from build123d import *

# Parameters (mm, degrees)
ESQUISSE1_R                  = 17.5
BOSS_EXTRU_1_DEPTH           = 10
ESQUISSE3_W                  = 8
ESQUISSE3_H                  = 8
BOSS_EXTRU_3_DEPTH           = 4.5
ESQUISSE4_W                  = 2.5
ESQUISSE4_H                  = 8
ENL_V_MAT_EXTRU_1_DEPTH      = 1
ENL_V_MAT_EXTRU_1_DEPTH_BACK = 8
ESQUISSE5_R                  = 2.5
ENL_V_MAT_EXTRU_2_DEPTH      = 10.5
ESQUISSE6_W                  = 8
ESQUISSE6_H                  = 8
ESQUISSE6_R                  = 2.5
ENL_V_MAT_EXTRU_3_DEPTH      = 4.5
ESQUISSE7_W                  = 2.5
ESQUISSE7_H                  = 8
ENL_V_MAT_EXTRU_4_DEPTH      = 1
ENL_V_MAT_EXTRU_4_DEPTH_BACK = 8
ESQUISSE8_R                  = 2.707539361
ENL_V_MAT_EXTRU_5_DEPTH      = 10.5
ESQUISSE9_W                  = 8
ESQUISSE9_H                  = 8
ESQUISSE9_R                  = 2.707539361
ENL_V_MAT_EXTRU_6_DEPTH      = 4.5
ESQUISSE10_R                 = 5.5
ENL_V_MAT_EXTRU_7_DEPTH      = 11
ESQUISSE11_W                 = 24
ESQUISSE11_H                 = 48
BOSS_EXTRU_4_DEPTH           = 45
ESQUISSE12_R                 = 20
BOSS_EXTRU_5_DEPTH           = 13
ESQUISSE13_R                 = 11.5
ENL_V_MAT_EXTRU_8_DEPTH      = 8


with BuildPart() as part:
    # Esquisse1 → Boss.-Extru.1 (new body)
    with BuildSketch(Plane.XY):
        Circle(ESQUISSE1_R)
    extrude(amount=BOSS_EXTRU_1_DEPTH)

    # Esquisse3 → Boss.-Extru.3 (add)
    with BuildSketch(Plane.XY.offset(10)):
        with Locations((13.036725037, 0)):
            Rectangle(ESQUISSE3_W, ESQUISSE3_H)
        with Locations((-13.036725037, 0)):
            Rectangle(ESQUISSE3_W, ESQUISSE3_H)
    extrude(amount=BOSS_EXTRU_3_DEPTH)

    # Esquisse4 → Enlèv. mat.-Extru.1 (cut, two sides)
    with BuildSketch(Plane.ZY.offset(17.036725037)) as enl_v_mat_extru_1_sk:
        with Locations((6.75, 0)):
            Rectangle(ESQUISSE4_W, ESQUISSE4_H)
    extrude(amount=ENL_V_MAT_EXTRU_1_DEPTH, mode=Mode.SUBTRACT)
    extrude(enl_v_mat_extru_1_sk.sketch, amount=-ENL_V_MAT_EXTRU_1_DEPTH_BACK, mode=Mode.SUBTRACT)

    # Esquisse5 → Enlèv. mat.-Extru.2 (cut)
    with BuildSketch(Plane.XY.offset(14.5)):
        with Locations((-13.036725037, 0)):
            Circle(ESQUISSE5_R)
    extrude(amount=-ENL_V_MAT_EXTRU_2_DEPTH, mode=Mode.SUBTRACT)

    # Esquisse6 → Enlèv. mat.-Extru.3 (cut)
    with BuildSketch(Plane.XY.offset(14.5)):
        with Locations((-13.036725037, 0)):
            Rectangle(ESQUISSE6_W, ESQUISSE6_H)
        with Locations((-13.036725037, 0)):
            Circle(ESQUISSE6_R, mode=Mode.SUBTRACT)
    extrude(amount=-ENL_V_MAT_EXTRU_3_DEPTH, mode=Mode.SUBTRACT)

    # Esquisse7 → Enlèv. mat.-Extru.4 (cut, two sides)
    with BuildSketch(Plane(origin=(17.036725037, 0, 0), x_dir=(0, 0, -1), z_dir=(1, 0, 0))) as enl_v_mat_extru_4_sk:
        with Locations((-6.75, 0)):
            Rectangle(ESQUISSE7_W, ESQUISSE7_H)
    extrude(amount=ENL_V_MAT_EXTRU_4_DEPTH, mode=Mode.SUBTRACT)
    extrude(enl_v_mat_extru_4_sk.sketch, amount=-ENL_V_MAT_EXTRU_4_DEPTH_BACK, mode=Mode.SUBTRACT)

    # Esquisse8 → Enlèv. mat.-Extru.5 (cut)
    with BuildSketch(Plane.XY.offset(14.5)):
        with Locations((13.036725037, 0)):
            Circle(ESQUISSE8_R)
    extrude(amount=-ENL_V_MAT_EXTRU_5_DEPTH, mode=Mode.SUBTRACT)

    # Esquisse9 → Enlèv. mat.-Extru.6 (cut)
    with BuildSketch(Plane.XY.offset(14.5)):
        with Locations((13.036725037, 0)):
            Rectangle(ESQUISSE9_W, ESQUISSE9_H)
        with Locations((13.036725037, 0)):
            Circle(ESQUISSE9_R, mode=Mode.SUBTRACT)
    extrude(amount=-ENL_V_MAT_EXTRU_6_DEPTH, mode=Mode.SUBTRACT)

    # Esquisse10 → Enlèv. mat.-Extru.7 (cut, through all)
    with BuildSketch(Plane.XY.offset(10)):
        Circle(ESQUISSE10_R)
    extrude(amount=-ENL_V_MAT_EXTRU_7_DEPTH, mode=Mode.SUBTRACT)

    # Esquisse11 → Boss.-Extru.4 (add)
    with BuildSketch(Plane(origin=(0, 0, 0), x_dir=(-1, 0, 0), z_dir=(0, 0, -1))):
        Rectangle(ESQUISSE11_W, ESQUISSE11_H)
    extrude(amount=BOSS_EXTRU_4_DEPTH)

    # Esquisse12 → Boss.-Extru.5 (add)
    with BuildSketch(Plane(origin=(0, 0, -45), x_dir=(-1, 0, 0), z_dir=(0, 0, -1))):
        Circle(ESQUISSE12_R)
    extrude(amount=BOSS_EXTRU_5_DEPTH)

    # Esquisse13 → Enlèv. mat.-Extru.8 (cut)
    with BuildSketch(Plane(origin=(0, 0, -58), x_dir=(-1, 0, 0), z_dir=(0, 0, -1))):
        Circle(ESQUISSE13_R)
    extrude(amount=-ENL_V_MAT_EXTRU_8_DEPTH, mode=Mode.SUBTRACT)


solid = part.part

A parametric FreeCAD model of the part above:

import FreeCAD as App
import Part
import Sketcher

V = App.Vector
Q = App.Units.Quantity

doc = App.newDocument("Part")
body = doc.addObject("PartDesign::Body", "Body")

# Sketch on XY plane
sketch1 = body.newObject("Sketcher::SketchObject", "Sketch")
sketch1.AttachmentSupport = (doc.getObject("XY_Plane"), [""])
sketch1.MapMode = "FlatFace"
sketch1.addGeometry(Part.Circle(V(0, 0, 0), V(0, 0, 1), 18), False)
sketch1.addConstraint([
    Sketcher.Constraint("Coincident", 0, 3, -1, 1),
    Sketcher.Constraint("Diameter", 0, Q("35 mm")),
])
pad1 = body.newObject("PartDesign::Pad", "Pad")
pad1.Profile = sketch1
pad1.Length = 10

# Sketch on XY plane
sketch2 = body.newObject("Sketcher::SketchObject", "Sketch001")
sketch2.AttachmentSupport = (doc.getObject("XY_Plane"), [""])
sketch2.MapMode = "FlatFace"
sketch2.AttachmentOffset = App.Placement(V(0, 0, 10), App.Rotation())
sketch2.addGeometry([
    Part.LineSegment(V(9, 4, 0), V(9, -4, 0)),  # 0
    Part.LineSegment(V(9, -4, 0), V(17, -4, 0)),  # 1
    Part.LineSegment(V(17, -4, 0), V(17, 4, 0)),  # 2
    Part.LineSegment(V(17, 4, 0), V(9, 4, 0)),  # 3
    Part.LineSegment(V(-17, 4, 0), V(-17, -4, 0)),  # 4
    Part.LineSegment(V(-17, -4, 0), V(-9, -4, 0)),  # 5
    Part.LineSegment(V(-9, -4, 0), V(-9, 4, 0)),  # 6
    Part.LineSegment(V(-9, 4, 0), V(-17, 4, 0)),  # 7
], False)
sketch2.addConstraint([
    Sketcher.Constraint("Coincident", 0, 2, 1, 1),
    Sketcher.Constraint("Coincident", 1, 2, 2, 1),
    Sketcher.Constraint("Coincident", 2, 2, 3, 1),
    Sketcher.Constraint("Coincident", 3, 2, 0, 1),
    Sketcher.Constraint("Coincident", 4, 2, 5, 1),
    Sketcher.Constraint("Coincident", 5, 2, 6, 1),
    Sketcher.Constraint("Coincident", 6, 2, 7, 1),
    Sketcher.Constraint("Coincident", 7, 2, 4, 1),
    Sketcher.Constraint("Vertical", 0),
    Sketcher.Constraint("Horizontal", 1),
    Sketcher.Constraint("Vertical", 2),
    Sketcher.Constraint("Horizontal", 3),
    Sketcher.Constraint("Vertical", 4),
    Sketcher.Constraint("Horizontal", 5),
    Sketcher.Constraint("Vertical", 6),
    Sketcher.Constraint("Horizontal", 7),
    Sketcher.Constraint("Symmetric", 2, 2, 4, 2, -1, 1),
    Sketcher.Constraint("Symmetric", 0, 2, 6, 2, -1, 1),
    Sketcher.Constraint("Horizontal", 1, 2, 4, 2),
    Sketcher.Constraint("Equal", 7, 0),
    Sketcher.Constraint("DistanceX", 1, 1, 1, 2, Q("8 mm")),
    Sketcher.Constraint("DistanceX", 4, 2, 0, 2, Q("26.07345 mm")),
])
pad2 = body.newObject("PartDesign::Pad", "Pad001")
pad2.Profile = sketch2
pad2.Length = 4.5

# Sketch on YZ plane
sketch3 = body.newObject("Sketcher::SketchObject", "Sketch002")
sketch3.AttachmentSupport = (doc.getObject("YZ_Plane"), [""])
sketch3.MapMode = "FlatFace"
sketch3.AttachmentOffset = App.Placement(V(0, 0, -17.036725), App.Rotation())
sketch3.addGeometry([
    Part.LineSegment(V(4, 5.5, 0), V(-4, 5.5, 0)),
    Part.LineSegment(V(-4, 5.5, 0), V(-4, 8, 0)),
    Part.LineSegment(V(-4, 8, 0), V(4, 8, 0)),
    Part.LineSegment(V(4, 8, 0), V(4, 5.5, 0)),
], False)
sketch3.addConstraint([
    Sketcher.Constraint("Coincident", 0, 2, 1, 1),
    Sketcher.Constraint("Coincident", 1, 2, 2, 1),
    Sketcher.Constraint("Coincident", 2, 2, 3, 1),
    Sketcher.Constraint("Coincident", 3, 2, 0, 1),
    Sketcher.Constraint("Horizontal", 0),
    Sketcher.Constraint("Vertical", 1),
    Sketcher.Constraint("Horizontal", 2),
    Sketcher.Constraint("Vertical", 3),
    Sketcher.Constraint("DistanceX", 0, 2, 0, 1, Q("8 mm")),
    Sketcher.Constraint("DistanceY", 1, 1, 1, 2, Q("2.5 mm")),
    Sketcher.Constraint("DistanceX", 0, 2, -1, 1, Q("4 mm")),
    Sketcher.Constraint("DistanceY", -1, 1, 1, 2, Q("8 mm")),
])
pocket1 = body.newObject("PartDesign::Pocket", "Pocket")
pocket1.Profile = sketch3
pocket1.Type = "TwoLengths"
pocket1.Length = 1
pocket1.Length2 = 8

# Sketch on XY plane
sketch4 = body.newObject("Sketcher::SketchObject", "Sketch003")
sketch4.AttachmentSupport = (doc.getObject("XY_Plane"), [""])
sketch4.MapMode = "FlatFace"
sketch4.AttachmentOffset = App.Placement(V(0, 0, 14.5), App.Rotation())
sketch4.addGeometry(Part.Circle(V(-13, 0, 0), V(0, 0, 1), 2.5), False)
sketch4.addConstraint([
    Sketcher.Constraint("PointOnObject", 0, 3, -1),
    Sketcher.Constraint("Diameter", 0, Q("5 mm")),
    Sketcher.Constraint("DistanceX", 0, 3, -1, 1, Q("13.036725 mm")),
])
pocket2 = body.newObject("PartDesign::Pocket", "Pocket001")
pocket2.Profile = sketch4
pocket2.Length = 10.5

# Sketch on XY plane
sketch5 = body.newObject("Sketcher::SketchObject", "Sketch004")
sketch5.AttachmentSupport = (doc.getObject("XY_Plane"), [""])
sketch5.MapMode = "FlatFace"
sketch5.AttachmentOffset = App.Placement(V(0, 0, 14.5), App.Rotation())
sketch5.addGeometry([
    Part.LineSegment(V(-17, 4, 0), V(-17, -4, 0)),  # 0
    Part.LineSegment(V(-17, -4, 0), V(-9, -4, 0)),  # 1
    Part.LineSegment(V(-9, -4, 0), V(-9, 4, 0)),  # 2
    Part.LineSegment(V(-9, 4, 0), V(-17, 4, 0)),  # 3
    Part.Circle(V(-13, 0, 0), V(0, 0, 1), 2.5),  # 4
], False)
sketch5.addConstraint([
    Sketcher.Constraint("Coincident", 0, 2, 1, 1),
    Sketcher.Constraint("Coincident", 1, 2, 2, 1),
    Sketcher.Constraint("Coincident", 2, 2, 3, 1),
    Sketcher.Constraint("Coincident", 3, 2, 0, 1),
    Sketcher.Constraint("Vertical", 0),
    Sketcher.Constraint("Horizontal", 1),
    Sketcher.Constraint("Vertical", 2),
    Sketcher.Constraint("Horizontal", 3),
    Sketcher.Constraint("PointOnObject", 4, 3, -1),
    Sketcher.Constraint("Equal", 3, 0),
    Sketcher.Constraint("Diameter", 4, Q("5 mm")),
    Sketcher.Constraint("DistanceX", 1, 1, 1, 2, Q("8 mm")),
    Sketcher.Constraint("DistanceY", 0, 2, -1, 1, Q("4 mm")),
    Sketcher.Constraint("DistanceX", 0, 2, 4, 3, Q("4 mm")),
    Sketcher.Constraint("DistanceX", 4, 3, -1, 1, Q("13.036725 mm")),
])
pocket3 = body.newObject("PartDesign::Pocket", "Pocket002")
pocket3.Profile = sketch5
pocket3.Length = 4.5

# Sketch on YZ plane
sketch6 = body.newObject("Sketcher::SketchObject", "Sketch005")
sketch6.AttachmentSupport = (doc.getObject("YZ_Plane"), [""])
sketch6.MapMode = "FlatFace"
sketch6.AttachmentOffset = App.Placement(V(0, 0, 17.036725), App.Rotation())
sketch6.addGeometry([
    Part.LineSegment(V(4, 8, 0), V(-4, 8, 0)),
    Part.LineSegment(V(-4, 8, 0), V(-4, 5.5, 0)),
    Part.LineSegment(V(-4, 5.5, 0), V(4, 5.5, 0)),
    Part.LineSegment(V(4, 5.5, 0), V(4, 8, 0)),
], False)
sketch6.addConstraint([
    Sketcher.Constraint("Coincident", 0, 2, 1, 1),
    Sketcher.Constraint("Coincident", 1, 2, 2, 1),
    Sketcher.Constraint("Coincident", 2, 2, 3, 1),
    Sketcher.Constraint("Coincident", 3, 2, 0, 1),
    Sketcher.Constraint("Horizontal", 0),
    Sketcher.Constraint("Vertical", 1),
    Sketcher.Constraint("Horizontal", 2),
    Sketcher.Constraint("Vertical", 3),
    Sketcher.Constraint("DistanceX", 0, 2, 0, 1, Q("8 mm")),
    Sketcher.Constraint("DistanceY", 1, 2, 1, 1, Q("2.5 mm")),
    Sketcher.Constraint("DistanceX", 0, 2, -1, 1, Q("4 mm")),
    Sketcher.Constraint("DistanceY", -1, 1, 0, 2, Q("8 mm")),
])
pocket4 = body.newObject("PartDesign::Pocket", "Pocket003")
pocket4.Profile = sketch6
pocket4.Type = "TwoLengths"
pocket4.Length = 1
pocket4.Length2 = 8
pocket4.Reversed = True

# Sketch on XY plane
sketch7 = body.newObject("Sketcher::SketchObject", "Sketch006")
sketch7.AttachmentSupport = (doc.getObject("XY_Plane"), [""])
sketch7.MapMode = "FlatFace"
sketch7.AttachmentOffset = App.Placement(V(0, 0, 14.5), App.Rotation())
sketch7.addGeometry(Part.Circle(V(13, 0, 0), V(0, 0, 1), 2.7), False)
sketch7.addConstraint([
    Sketcher.Constraint("PointOnObject", 0, 3, -1),
    Sketcher.Constraint("Diameter", 0, Q("5.415079 mm")),
    Sketcher.Constraint("DistanceX", -1, 1, 0, 3, Q("13.036725 mm")),
])
pocket5 = body.newObject("PartDesign::Pocket", "Pocket004")
pocket5.Profile = sketch7
pocket5.Length = 10.5

# Sketch on XY plane
sketch8 = body.newObject("Sketcher::SketchObject", "Sketch007")
sketch8.AttachmentSupport = (doc.getObject("XY_Plane"), [""])
sketch8.MapMode = "FlatFace"
sketch8.AttachmentOffset = App.Placement(V(0, 0, 14.5), App.Rotation())
sketch8.addGeometry([
    Part.LineSegment(V(9, 4, 0), V(9, -4, 0)),  # 0
    Part.LineSegment(V(9, -4, 0), V(17, -4, 0)),  # 1
    Part.LineSegment(V(17, -4, 0), V(17, 4, 0)),  # 2
    Part.LineSegment(V(17, 4, 0), V(9, 4, 0)),  # 3
    Part.Circle(V(13, 0, 0), V(0, 0, 1), 2.7),  # 4
], False)
sketch8.addConstraint([
    Sketcher.Constraint("Coincident", 0, 2, 1, 1),
    Sketcher.Constraint("Coincident", 1, 2, 2, 1),
    Sketcher.Constraint("Coincident", 2, 2, 3, 1),
    Sketcher.Constraint("Coincident", 3, 2, 0, 1),
    Sketcher.Constraint("Vertical", 0),
    Sketcher.Constraint("Horizontal", 1),
    Sketcher.Constraint("Vertical", 2),
    Sketcher.Constraint("Horizontal", 3),
    Sketcher.Constraint("PointOnObject", 4, 3, -1),
    Sketcher.Constraint("Equal", 3, 0),
    Sketcher.Constraint("DistanceX", 1, 1, 1, 2, Q("8 mm")),
    Sketcher.Constraint("DistanceY", 0, 2, -1, 1, Q("4 mm")),
    Sketcher.Constraint("DistanceX", 0, 2, 4, 3, Q("4 mm")),
    Sketcher.Constraint("Diameter", 4, Q("5.415079 mm")),
    Sketcher.Constraint("DistanceX", -1, 1, 4, 3, Q("13.036725 mm")),
])
pocket6 = body.newObject("PartDesign::Pocket", "Pocket005")
pocket6.Profile = sketch8
pocket6.Length = 4.5

# Sketch on XY plane
sketch9 = body.newObject("Sketcher::SketchObject", "Sketch008")
sketch9.AttachmentSupport = (doc.getObject("XY_Plane"), [""])
sketch9.MapMode = "FlatFace"
sketch9.AttachmentOffset = App.Placement(V(0, 0, 10), App.Rotation())
sketch9.addGeometry(Part.Circle(V(0, 0, 0), V(0, 0, 1), 6), False)
sketch9.addConstraint([
    Sketcher.Constraint("Coincident", 0, 3, -1, 1),
    Sketcher.Constraint("Diameter", 0, Q("11 mm")),
])
pocket7 = body.newObject("PartDesign::Pocket", "Pocket006")
pocket7.Profile = sketch9
pocket7.Type = "ThroughAll"

# Sketch on XY plane
sketch10 = body.newObject("Sketcher::SketchObject", "Sketch009")
sketch10.AttachmentSupport = (doc.getObject("XY_Plane"), [""])
sketch10.MapMode = "FlatFace"
sketch10.addGeometry([
    Part.LineSegment(V(12, 24, 0), V(12, -24, 0)),
    Part.LineSegment(V(12, -24, 0), V(-12, -24, 0)),
    Part.LineSegment(V(-12, -24, 0), V(-12, 24, 0)),
    Part.LineSegment(V(-12, 24, 0), V(12, 24, 0)),
], False)
sketch10.addConstraint([
    Sketcher.Constraint("Coincident", 0, 2, 1, 1),
    Sketcher.Constraint("Coincident", 1, 2, 2, 1),
    Sketcher.Constraint("Coincident", 2, 2, 3, 1),
    Sketcher.Constraint("Coincident", 3, 2, 0, 1),
    Sketcher.Constraint("Vertical", 0),
    Sketcher.Constraint("Horizontal", 1),
    Sketcher.Constraint("Vertical", 2),
    Sketcher.Constraint("Horizontal", 3),
    Sketcher.Constraint("Symmetric", 0, 2, 2, 2, -1, 1),
    Sketcher.Constraint("DistanceX", 1, 2, 1, 1, Q("24 mm")),
    Sketcher.Constraint("DistanceY", 0, 2, 0, 1, Q("48 mm")),
])
pad3 = body.newObject("PartDesign::Pad", "Pad002")
pad3.Profile = sketch10
pad3.Length = 45
pad3.Reversed = True

# Sketch on XY plane
sketch11 = body.newObject("Sketcher::SketchObject", "Sketch010")
sketch11.AttachmentSupport = (doc.getObject("XY_Plane"), [""])
sketch11.MapMode = "FlatFace"
sketch11.AttachmentOffset = App.Placement(V(0, 0, -45), App.Rotation())
sketch11.addGeometry(Part.Circle(V(0, 0, 0), V(0, 0, 1), 20), False)
sketch11.addConstraint([
    Sketcher.Constraint("Coincident", 0, 3, -1, 1),
    Sketcher.Constraint("Diameter", 0, Q("40 mm")),
])
pad4 = body.newObject("PartDesign::Pad", "Pad003")
pad4.Profile = sketch11
pad4.Length = 13
pad4.Reversed = True

# Sketch on XY plane
sketch12 = body.newObject("Sketcher::SketchObject", "Sketch011")
sketch12.AttachmentSupport = (doc.getObject("XY_Plane"), [""])
sketch12.MapMode = "FlatFace"
sketch12.AttachmentOffset = App.Placement(V(0, 0, -58), App.Rotation())
sketch12.addGeometry(Part.Circle(V(0, 0, 0), V(0, 0, 1), 12), False)
sketch12.addConstraint([
    Sketcher.Constraint("Coincident", 0, 3, -1, 1),
    Sketcher.Constraint("Diameter", 0, Q("23 mm")),
])
pocket8 = body.newObject("PartDesign::Pocket", "Pocket007")
pocket8.Profile = sketch12
pocket8.Length = 8
pocket8.Reversed = True

doc.recompute()
